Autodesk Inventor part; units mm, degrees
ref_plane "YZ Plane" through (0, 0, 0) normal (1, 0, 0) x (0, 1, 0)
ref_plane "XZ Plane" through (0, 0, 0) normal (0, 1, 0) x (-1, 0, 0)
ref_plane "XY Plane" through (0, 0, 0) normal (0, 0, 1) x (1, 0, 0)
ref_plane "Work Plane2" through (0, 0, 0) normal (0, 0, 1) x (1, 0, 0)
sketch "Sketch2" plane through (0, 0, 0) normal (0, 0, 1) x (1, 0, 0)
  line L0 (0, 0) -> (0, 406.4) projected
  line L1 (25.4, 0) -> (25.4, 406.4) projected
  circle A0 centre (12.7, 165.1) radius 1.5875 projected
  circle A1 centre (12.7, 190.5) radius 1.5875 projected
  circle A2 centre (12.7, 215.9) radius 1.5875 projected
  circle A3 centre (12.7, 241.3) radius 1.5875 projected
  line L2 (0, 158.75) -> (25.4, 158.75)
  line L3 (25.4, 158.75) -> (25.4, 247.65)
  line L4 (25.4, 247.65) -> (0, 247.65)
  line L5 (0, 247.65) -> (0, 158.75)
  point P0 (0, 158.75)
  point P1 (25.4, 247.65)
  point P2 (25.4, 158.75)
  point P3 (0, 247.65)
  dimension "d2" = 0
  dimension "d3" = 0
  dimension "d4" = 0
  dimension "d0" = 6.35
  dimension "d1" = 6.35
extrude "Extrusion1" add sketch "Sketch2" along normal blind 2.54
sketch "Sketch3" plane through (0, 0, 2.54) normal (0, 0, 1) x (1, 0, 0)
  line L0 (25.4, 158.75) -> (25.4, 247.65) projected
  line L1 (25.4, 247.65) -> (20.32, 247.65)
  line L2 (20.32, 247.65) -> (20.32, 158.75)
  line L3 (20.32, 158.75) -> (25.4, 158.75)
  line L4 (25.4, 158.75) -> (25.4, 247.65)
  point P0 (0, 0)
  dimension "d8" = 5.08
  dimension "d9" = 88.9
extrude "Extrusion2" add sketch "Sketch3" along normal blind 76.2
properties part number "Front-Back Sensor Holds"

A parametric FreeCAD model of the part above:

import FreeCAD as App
import Part
import Sketcher

V = App.Vector
Q = App.Units.Quantity

doc = App.newDocument("Part")
params = doc.addObject("Spreadsheet::Sheet", "Params")
for row, (alias, value) in enumerate([
    ("sketch1_width", "1 in"),
    ("sketch1_diameter", "0.125 in"),
    ("sketch1_height", "3.5 in"),
    ("pad1_length", "0.1 in"),
    ("sketch2_width", "0.2 in"),
    ("sketch2_height", "3.5 in"),
    ("pad2_length", "3 in"),
], start=1):
    params.set(f"A{row}", alias)
    params.set(f"B{row}", "=" + value)
    params.setAlias(f"B{row}", alias)

body = doc.addObject("PartDesign::Body", "Body")

sketch1 = body.newObject("Sketcher::SketchObject", "Sketch")
sketch1.AttachmentSupport = (doc.getObject("XY_Plane"), [""])
sketch1.MapMode = "FlatFace"
sketch1.addGeometry([
    Part.LineSegment(V(0, 247.7, 0), V(0, 158.8, 0)),
    Part.LineSegment(V(0, 158.8, 0), V(25.4, 158.8, 0)),
    Part.LineSegment(V(25.4, 158.8, 0), V(25.4, 247.7, 0)),
    Part.LineSegment(V(25.4, 247.7, 0), V(0, 247.7, 0)),
    Part.Circle(V(12.7, 165.1, 0), V(0, 0, 1), 1.6),
    Part.Circle(V(12.7, 190.5, 0), V(0, 0, 1), 1.6),
    Part.Circle(V(12.7, 215.9, 0), V(0, 0, 1), 1.6),
    Part.Circle(V(12.7, 241.3, 0), V(0, 0, 1), 1.6),
], False)
sketch1.addConstraint([
    Sketcher.Constraint("Coincident", 0, 2, 1, 1),
    Sketcher.Constraint("Coincident", 1, 2, 2, 1),
    Sketcher.Constraint("Coincident", 2, 2, 3, 1),
    Sketcher.Constraint("Coincident", 3, 2, 0, 1),
    Sketcher.Constraint("Vertical", 0),
    Sketcher.Constraint("Horizontal", 1),
    Sketcher.Constraint("Vertical", 2),
    Sketcher.Constraint("Horizontal", 3),
    Sketcher.Constraint("Equal", 4, 5),
    Sketcher.Constraint("Equal", 5, 6),
    Sketcher.Constraint("Equal", 6, 7),
    Sketcher.Constraint("PointOnObject", 0, 2, -2),
    Sketcher.Constraint("Vertical", 4, 3, 5, 3),
    Sketcher.Constraint("Vertical", 5, 3, 6, 3),
    Sketcher.Constraint("Vertical", 6, 3, 7, 3),
    Sketcher.Constraint("DistanceX", 1, 1, 1, 2, Q("1 in")),
    Sketcher.Constraint("DistanceY", 0, 2, 4, 3, Q("0.25 in")),
    Sketcher.Constraint("DistanceY", 7, 3, 2, 2, Q("0.25 in")),
    Sketcher.Constraint("Diameter", 4, Q("0.125 in")),
    Sketcher.Constraint("DistanceY", 0, 2, 0, 1, Q("3.5 in")),
    Sketcher.Constraint("DistanceY", 4, 3, 5, 3, Q("1 in")),
    Sketcher.Constraint("DistanceY", 5, 3, 6, 3, Q("1 in")),
    Sketcher.Constraint("DistanceX", -1, 1, 4, 3, Q("0.5 in")),
    Sketcher.Constraint("DistanceY", -1, 1, 4, 3, Q("6.5 in")),
])
sketch1.setExpression("Constraints[15]", "Params.sketch1_width")
sketch1.setExpression("Constraints[18]", "Params.sketch1_diameter")
sketch1.setExpression("Constraints[19]", "Params.sketch1_height")
pad1 = body.newObject("PartDesign::Pad", "Pad")
pad1.Profile = sketch1
pad1.setExpression("Length", "Params.pad1_length")

sketch2 = body.newObject("Sketcher::SketchObject", "Sketch001")
sketch2.AttachmentSupport = (doc.getObject("XY_Plane"), [""])
sketch2.MapMode = "FlatFace"
sketch2.AttachmentOffset = App.Placement(V(0, 0, 0.1 * 25.4), App.Rotation())
sketch2.addGeometry([
    Part.LineSegment(V(20, 159, 0), V(25, 159, 0)),
    Part.LineSegment(V(25, 159, 0), V(25, 248, 0)),
    Part.LineSegment(V(25, 248, 0), V(20, 248, 0)),
    Part.LineSegment(V(20, 248, 0), V(20, 159, 0)),
], False)
sketch2.addConstraint([
    Sketcher.Constraint("Coincident", 0, 2, 1, 1),
    Sketcher.Constraint("Coincident", 1, 2, 2, 1),
    Sketcher.Constraint("Coincident", 2, 2, 3, 1),
    Sketcher.Constraint("Coincident", 3, 2, 0, 1),
    Sketcher.Constraint("Horizontal", 0),
    Sketcher.Constraint("Vertical", 1),
    Sketcher.Constraint("Horizontal", 2),
    Sketcher.Constraint("Vertical", 3),
    Sketcher.Constraint("DistanceX", 0, 1, 0, 2, Q("0.2 in")),
    Sketcher.Constraint("DistanceY", 1, 1, 1, 2, Q("3.5 in")),
    Sketcher.Constraint("DistanceX", -1, 1, 0, 2, Q("1 in")),
    Sketcher.Constraint("DistanceY", -1, 1, 0, 2, Q("6.25 in")),
])
sketch2.setExpression("Constraints[8]", "Params.sketch2_width")
sketch2.setExpression("Constraints[9]", "Params.sketch2_height")
pad2 = body.newObject("PartDesign::Pad", "Pad001")
pad2.Profile = sketch2
pad2.setExpression("Length", "Params.pad2_length")

doc.recompute()
